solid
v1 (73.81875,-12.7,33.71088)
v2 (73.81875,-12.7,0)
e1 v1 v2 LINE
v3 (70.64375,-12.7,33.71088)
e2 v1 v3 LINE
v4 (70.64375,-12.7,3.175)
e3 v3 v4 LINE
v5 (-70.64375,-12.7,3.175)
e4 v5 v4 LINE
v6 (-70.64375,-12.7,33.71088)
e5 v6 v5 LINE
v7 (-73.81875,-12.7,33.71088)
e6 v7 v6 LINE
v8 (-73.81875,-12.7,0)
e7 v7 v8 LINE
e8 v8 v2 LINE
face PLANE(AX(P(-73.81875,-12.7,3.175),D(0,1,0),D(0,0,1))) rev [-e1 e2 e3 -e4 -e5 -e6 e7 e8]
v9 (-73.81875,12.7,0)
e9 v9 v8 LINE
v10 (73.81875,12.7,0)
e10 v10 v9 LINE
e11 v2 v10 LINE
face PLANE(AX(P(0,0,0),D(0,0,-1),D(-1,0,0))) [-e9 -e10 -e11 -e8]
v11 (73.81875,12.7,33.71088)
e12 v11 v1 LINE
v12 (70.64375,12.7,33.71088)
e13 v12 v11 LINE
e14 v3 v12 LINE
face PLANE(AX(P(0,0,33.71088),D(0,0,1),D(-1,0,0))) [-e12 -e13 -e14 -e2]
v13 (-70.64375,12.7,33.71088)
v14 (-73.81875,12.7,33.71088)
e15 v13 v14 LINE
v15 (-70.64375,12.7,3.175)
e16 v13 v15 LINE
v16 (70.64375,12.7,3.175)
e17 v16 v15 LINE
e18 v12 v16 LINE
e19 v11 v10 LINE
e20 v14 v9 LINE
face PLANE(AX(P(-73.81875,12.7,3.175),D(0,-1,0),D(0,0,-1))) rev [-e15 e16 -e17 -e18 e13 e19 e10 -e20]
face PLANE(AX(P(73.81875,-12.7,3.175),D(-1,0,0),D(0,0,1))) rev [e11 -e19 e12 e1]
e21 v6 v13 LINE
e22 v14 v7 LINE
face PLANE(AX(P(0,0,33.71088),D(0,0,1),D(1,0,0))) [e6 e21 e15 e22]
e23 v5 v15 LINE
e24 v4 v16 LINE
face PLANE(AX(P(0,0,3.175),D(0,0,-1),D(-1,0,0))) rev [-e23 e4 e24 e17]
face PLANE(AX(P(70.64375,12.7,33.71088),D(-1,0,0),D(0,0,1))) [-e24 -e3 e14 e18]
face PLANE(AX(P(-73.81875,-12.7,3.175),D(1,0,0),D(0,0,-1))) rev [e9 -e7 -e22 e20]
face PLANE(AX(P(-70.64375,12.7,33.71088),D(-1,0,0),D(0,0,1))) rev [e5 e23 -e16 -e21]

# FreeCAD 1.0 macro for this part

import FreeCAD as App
import Part
import Sketcher
from FreeCAD import Vector
Q = App.Units.Quantity


def add_polygon(sketch, points):
    """Adds a closed chain of lines whose ends are joined by coincident constraints."""
    first, n = sketch.GeometryCount, len(points)
    for a, b in zip(points, points[1:] + points[:1]):
        sketch.addGeometry(Part.LineSegment(App.Vector(*a, 0), App.Vector(*b, 0)), False)
    for i in range(n):
        sketch.addConstraint(Sketcher.Constraint("Coincident", first + i, 2, first + (i + 1) % n, 1))

doc = App.newDocument("Part")
body = doc.addObject("PartDesign::Body", "Body")

# Sketch on XY plane
sketch1 = body.newObject("Sketcher::SketchObject", "Sketch")
sketch1.AttachmentSupport = (doc.getObject("XY_Plane"), [""])
sketch1.MapMode = "FlatFace"
add_polygon(sketch1, [(-74, 13), (-74, -13), (74, -13), (74, 13)])  # lines 0-3
sketch1.addConstraint([
    Sketcher.Constraint("Vertical", 0),
    Sketcher.Constraint("Horizontal", 1),
    Sketcher.Constraint("Vertical", 2),
    Sketcher.Constraint("Horizontal", 3),
    Sketcher.Constraint("Symmetric", 0, 2, 2, 2, -1, 1),
    Sketcher.Constraint("DistanceY", 0, 2, 0, 1, Q("1 in")),
    Sketcher.Constraint("DistanceX", 1, 1, 1, 2, Q("5.8125 in")),
])
pad1 = body.newObject("PartDesign::Pad", "Pad")
pad1.Profile = sketch1
pad1.Length = Q("0.125 in")

# Sketch on XY plane
sketch2 = body.newObject("Sketcher::SketchObject", "Sketch001")
sketch2.AttachmentSupport = (doc.getObject("XY_Plane"), [""])
sketch2.MapMode = "FlatFace"
sketch2.AttachmentOffset = App.Placement(Vector(0, 0, 0.125 * 25.4), App.Rotation())
add_polygon(sketch2, [(-73.8, 12.7), (-73.8, -12.7), (-70.6, -12.7), (-70.6, 12.7)])  # lines 0-3
sketch2.addConstraint([
    Sketcher.Constraint("Vertical", 0),
    Sketcher.Constraint("Horizontal", 1),
    Sketcher.Constraint("Vertical", 2),
    Sketcher.Constraint("Horizontal", 3),
    Sketcher.Constraint("DistanceY", 0, 2, 0, 1, Q("1 in")),
    Sketcher.Constraint("DistanceY", 0, 2, -1, 1, Q("0.5 in")),
    Sketcher.Constraint("DistanceX", 1, 1, 1, 2, Q("0.125 in")),
    Sketcher.Constraint("DistanceX", 0, 2, -1, 1, Q("2.90625 in")),
])
pad2 = body.newObject("PartDesign::Pad", "Pad001")
pad2.Profile = sketch2
pad2.Length = Q("1.2022 in")
doc.recompute()

mirrored = body.newObject("PartDesign::Mirrored", "Mirrored")
mirrored.Originals = [pad2]
mirrored.MirrorPlane = (doc.getObject("YZ_Plane"), [""])
body.Tip = mirrored

doc.recompute()
